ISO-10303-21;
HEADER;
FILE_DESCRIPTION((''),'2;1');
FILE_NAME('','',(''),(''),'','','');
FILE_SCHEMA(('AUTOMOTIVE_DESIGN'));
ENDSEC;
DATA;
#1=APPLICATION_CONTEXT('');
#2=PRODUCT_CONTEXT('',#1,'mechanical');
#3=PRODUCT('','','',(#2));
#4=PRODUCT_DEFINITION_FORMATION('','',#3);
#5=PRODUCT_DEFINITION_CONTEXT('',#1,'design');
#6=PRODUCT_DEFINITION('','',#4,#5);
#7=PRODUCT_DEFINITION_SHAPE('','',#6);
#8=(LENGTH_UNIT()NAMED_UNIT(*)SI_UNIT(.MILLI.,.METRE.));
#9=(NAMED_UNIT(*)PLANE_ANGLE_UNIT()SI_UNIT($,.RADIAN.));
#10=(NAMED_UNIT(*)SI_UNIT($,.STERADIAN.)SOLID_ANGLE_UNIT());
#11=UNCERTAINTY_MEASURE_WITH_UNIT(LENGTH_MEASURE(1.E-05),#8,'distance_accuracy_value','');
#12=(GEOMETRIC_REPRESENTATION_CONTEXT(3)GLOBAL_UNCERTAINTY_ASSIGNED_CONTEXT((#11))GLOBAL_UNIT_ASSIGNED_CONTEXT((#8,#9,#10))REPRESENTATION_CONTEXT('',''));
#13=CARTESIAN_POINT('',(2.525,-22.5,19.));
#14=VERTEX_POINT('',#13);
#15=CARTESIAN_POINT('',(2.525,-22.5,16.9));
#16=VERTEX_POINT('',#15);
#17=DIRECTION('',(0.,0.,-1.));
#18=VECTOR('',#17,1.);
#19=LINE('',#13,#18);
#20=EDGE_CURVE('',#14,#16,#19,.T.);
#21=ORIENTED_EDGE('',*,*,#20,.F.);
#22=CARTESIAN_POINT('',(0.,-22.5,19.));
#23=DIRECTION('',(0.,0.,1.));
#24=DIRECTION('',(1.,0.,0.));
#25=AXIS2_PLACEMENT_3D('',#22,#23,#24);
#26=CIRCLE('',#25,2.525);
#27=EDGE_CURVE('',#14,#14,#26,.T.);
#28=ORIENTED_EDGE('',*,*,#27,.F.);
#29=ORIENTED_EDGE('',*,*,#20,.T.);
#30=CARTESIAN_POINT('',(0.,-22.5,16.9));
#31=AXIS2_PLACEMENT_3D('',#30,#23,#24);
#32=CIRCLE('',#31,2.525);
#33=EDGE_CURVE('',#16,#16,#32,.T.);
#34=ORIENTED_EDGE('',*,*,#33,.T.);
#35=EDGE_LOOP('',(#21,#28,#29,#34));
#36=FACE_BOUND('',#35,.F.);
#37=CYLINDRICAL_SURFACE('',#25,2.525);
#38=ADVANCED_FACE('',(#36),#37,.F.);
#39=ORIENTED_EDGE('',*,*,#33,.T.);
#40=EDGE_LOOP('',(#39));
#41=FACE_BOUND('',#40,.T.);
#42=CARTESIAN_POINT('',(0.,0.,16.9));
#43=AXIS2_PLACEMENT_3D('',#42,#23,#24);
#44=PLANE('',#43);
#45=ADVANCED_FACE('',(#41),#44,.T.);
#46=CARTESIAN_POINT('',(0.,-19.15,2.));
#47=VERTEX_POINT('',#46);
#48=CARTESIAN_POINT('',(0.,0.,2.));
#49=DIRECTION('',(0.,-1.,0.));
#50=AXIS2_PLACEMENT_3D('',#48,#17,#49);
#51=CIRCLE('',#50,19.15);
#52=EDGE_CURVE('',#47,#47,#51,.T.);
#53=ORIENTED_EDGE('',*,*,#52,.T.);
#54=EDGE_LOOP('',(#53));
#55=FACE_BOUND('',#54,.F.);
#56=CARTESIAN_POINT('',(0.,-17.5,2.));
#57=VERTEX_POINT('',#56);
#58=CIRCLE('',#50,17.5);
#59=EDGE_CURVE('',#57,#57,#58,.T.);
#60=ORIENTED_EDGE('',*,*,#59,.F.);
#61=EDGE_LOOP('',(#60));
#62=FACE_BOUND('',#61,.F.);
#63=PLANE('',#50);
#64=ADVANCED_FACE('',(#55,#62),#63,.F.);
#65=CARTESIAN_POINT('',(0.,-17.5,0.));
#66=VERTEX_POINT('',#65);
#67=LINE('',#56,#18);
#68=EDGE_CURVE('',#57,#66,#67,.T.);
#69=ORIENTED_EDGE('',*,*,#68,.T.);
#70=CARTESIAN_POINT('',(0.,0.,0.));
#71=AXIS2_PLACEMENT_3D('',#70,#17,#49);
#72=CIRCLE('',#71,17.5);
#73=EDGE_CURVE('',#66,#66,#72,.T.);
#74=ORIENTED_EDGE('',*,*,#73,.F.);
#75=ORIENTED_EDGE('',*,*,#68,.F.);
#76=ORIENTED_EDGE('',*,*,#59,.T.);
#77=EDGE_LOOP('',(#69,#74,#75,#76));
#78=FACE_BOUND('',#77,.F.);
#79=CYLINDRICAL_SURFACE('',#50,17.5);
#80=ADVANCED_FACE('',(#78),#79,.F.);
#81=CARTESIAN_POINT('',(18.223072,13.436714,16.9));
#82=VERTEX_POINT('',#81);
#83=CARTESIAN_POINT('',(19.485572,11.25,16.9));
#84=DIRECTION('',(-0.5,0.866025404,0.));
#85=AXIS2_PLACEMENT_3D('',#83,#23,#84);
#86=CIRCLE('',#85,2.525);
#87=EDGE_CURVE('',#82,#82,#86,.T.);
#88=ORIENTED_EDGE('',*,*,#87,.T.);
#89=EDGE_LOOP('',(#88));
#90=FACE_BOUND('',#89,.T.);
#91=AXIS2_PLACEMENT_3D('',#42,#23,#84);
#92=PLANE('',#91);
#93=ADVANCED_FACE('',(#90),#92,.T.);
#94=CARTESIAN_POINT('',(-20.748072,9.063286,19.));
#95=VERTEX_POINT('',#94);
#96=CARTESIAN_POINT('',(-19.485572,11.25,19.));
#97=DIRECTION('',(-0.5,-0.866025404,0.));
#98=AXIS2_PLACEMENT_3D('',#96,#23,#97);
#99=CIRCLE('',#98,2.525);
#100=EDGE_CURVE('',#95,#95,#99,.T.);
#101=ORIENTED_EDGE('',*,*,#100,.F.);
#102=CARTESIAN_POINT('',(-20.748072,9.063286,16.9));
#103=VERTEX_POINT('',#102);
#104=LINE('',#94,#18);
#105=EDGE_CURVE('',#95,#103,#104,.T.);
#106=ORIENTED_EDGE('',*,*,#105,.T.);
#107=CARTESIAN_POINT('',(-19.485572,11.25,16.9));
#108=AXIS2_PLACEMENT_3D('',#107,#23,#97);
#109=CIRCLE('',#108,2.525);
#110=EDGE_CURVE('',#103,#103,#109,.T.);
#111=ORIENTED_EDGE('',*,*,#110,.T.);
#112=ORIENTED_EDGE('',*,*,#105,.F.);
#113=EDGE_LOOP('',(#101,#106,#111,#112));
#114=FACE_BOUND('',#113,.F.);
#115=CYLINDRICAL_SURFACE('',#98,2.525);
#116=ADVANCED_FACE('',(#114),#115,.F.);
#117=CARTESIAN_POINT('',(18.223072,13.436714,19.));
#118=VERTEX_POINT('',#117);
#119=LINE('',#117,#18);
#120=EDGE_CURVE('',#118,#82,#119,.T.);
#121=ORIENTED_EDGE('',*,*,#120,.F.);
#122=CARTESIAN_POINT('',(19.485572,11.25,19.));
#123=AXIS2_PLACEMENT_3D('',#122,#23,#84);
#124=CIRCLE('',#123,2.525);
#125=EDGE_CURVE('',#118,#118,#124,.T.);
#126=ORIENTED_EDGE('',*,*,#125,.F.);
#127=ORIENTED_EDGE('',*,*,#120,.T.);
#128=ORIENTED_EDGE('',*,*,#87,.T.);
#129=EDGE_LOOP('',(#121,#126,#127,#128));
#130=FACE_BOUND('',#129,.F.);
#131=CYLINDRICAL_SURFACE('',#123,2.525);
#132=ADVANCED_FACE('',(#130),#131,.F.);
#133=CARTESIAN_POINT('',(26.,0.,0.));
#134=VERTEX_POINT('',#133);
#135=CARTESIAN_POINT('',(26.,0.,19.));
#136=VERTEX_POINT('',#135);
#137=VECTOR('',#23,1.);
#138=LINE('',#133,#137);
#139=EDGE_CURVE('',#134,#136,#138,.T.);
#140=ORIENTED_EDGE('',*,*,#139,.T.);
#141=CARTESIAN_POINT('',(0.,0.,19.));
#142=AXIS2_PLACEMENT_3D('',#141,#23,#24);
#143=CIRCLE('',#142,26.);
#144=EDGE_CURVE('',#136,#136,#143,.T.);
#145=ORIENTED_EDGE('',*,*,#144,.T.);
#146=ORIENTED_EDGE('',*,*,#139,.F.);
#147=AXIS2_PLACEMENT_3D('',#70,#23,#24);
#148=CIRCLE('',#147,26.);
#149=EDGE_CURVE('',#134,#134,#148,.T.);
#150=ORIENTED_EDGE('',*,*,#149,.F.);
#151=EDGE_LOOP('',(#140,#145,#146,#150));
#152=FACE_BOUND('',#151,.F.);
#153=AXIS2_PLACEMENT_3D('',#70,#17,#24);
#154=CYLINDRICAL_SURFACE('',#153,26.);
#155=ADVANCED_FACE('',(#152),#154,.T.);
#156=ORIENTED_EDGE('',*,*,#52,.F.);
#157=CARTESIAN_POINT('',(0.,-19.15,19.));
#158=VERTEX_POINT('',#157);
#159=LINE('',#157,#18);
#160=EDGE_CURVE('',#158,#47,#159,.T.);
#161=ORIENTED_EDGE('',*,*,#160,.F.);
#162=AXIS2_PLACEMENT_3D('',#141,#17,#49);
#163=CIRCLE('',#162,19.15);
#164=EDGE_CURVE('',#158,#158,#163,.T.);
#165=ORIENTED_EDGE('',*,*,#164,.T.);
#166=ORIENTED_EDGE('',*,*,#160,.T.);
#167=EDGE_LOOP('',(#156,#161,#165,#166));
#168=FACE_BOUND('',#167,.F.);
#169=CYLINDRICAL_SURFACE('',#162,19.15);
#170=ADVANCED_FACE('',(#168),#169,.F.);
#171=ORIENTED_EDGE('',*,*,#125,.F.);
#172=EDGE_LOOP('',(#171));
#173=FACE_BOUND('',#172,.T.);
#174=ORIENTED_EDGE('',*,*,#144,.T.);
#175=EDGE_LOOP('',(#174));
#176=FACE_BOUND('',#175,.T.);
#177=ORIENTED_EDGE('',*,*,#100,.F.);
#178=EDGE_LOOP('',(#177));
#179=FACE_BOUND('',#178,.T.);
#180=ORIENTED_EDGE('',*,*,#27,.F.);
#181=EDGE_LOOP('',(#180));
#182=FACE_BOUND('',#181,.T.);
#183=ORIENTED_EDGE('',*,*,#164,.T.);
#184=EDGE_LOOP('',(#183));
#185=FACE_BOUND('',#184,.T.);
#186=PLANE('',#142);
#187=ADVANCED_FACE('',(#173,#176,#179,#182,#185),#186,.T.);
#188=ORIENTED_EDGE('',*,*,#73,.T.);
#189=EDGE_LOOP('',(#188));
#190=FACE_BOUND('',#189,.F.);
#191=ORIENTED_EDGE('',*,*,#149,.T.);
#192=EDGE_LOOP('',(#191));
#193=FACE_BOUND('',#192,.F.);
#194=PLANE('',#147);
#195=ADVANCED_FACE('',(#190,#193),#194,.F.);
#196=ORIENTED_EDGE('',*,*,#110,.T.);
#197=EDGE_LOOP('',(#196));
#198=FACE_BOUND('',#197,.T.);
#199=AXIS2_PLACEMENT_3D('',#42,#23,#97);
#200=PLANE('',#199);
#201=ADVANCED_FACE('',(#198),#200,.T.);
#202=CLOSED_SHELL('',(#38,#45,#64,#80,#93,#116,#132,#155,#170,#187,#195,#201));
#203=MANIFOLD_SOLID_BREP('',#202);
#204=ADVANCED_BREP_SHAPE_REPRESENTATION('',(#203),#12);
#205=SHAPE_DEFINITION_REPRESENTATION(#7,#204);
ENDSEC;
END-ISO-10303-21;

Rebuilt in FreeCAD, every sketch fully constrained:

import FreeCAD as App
import Part
import Sketcher
Q = App.Units.Quantity

doc = App.newDocument("Part")
body = doc.addObject("PartDesign::Body", "Body")

sketch1 = body.newObject("Sketcher::SketchObject", "Sketch")
sketch1.AttachmentSupport = (doc.getObject("XY_Plane"), [""])
sketch1.MapMode = "FlatFace"
sketch1.addGeometry(Part.Circle(App.Vector(0, 0, 0), App.Vector(0, 0, 1), 26), False)
sketch1.addConstraint([
    Sketcher.Constraint("Coincident", 0, 3, -1, 1),
    Sketcher.Constraint("Diameter", 0, Q("52 mm")),
])
pad1 = body.newObject("PartDesign::Pad", "Pad")
pad1.Profile = sketch1
pad1.Length = 19

sketch2 = body.newObject("Sketcher::SketchObject", "Sketch001")
sketch2.AttachmentSupport = (doc.getObject("XY_Plane"), [""])
sketch2.MapMode = "FlatFace"
sketch2.AttachmentOffset = App.Placement(App.Vector(0, 0, 19), App.Rotation())
sketch2.addGeometry(Part.Circle(App.Vector(0, 0, 0), App.Vector(0, 0, 1), 17.5), False)
sketch2.addConstraint([
    Sketcher.Constraint("Coincident", 0, 3, -1, 1),
    Sketcher.Constraint("Diameter", 0, Q("35 mm")),
])
doc.recompute()
hole = body.newObject("PartDesign::Hole", "Hole")
hole.Profile = sketch2
hole.ThreadType = "None"
hole.Diameter = 35
hole.DepthType = "Dimension"
hole.Depth = 20
hole.DrillPoint = "Flat"
hole.HoleCutType = "Counterbore"
hole.HoleCutDiameter = 38.3
hole.HoleCutDepth = 17

sketch3 = body.newObject("Sketcher::SketchObject", "Sketch002")
sketch3.AttachmentSupport = (doc.getObject("XY_Plane"), [""])
sketch3.MapMode = "FlatFace"
sketch3.AttachmentOffset = App.Placement(App.Vector(0, 0, 19), App.Rotation())
sketch3.addGeometry(Part.Circle(App.Vector(0, -22.5, 0), App.Vector(0, 0, 1), 2.525), False)
sketch3.addConstraint([
    Sketcher.Constraint("PointOnObject", 0, 3, -2),
    Sketcher.Constraint("Diameter", 0, Q("5.05 mm")),
    Sketcher.Constraint("DistanceY", 0, 3, -1, 1, Q("22.5 mm")),
])
pocket1 = body.newObject("PartDesign::Pocket", "Pocket")
pocket1.Profile = sketch3
pocket1.Length = 2.1
doc.recompute()

polarpattern = body.newObject("PartDesign::PolarPattern", "PolarPattern")
polarpattern.Originals = [pocket1]
polarpattern.Axis = (doc.getObject("Z_Axis"), [""])
polarpattern.Angle = 360
polarpattern.Occurrences = 3
body.Tip = polarpattern

doc.recompute()
